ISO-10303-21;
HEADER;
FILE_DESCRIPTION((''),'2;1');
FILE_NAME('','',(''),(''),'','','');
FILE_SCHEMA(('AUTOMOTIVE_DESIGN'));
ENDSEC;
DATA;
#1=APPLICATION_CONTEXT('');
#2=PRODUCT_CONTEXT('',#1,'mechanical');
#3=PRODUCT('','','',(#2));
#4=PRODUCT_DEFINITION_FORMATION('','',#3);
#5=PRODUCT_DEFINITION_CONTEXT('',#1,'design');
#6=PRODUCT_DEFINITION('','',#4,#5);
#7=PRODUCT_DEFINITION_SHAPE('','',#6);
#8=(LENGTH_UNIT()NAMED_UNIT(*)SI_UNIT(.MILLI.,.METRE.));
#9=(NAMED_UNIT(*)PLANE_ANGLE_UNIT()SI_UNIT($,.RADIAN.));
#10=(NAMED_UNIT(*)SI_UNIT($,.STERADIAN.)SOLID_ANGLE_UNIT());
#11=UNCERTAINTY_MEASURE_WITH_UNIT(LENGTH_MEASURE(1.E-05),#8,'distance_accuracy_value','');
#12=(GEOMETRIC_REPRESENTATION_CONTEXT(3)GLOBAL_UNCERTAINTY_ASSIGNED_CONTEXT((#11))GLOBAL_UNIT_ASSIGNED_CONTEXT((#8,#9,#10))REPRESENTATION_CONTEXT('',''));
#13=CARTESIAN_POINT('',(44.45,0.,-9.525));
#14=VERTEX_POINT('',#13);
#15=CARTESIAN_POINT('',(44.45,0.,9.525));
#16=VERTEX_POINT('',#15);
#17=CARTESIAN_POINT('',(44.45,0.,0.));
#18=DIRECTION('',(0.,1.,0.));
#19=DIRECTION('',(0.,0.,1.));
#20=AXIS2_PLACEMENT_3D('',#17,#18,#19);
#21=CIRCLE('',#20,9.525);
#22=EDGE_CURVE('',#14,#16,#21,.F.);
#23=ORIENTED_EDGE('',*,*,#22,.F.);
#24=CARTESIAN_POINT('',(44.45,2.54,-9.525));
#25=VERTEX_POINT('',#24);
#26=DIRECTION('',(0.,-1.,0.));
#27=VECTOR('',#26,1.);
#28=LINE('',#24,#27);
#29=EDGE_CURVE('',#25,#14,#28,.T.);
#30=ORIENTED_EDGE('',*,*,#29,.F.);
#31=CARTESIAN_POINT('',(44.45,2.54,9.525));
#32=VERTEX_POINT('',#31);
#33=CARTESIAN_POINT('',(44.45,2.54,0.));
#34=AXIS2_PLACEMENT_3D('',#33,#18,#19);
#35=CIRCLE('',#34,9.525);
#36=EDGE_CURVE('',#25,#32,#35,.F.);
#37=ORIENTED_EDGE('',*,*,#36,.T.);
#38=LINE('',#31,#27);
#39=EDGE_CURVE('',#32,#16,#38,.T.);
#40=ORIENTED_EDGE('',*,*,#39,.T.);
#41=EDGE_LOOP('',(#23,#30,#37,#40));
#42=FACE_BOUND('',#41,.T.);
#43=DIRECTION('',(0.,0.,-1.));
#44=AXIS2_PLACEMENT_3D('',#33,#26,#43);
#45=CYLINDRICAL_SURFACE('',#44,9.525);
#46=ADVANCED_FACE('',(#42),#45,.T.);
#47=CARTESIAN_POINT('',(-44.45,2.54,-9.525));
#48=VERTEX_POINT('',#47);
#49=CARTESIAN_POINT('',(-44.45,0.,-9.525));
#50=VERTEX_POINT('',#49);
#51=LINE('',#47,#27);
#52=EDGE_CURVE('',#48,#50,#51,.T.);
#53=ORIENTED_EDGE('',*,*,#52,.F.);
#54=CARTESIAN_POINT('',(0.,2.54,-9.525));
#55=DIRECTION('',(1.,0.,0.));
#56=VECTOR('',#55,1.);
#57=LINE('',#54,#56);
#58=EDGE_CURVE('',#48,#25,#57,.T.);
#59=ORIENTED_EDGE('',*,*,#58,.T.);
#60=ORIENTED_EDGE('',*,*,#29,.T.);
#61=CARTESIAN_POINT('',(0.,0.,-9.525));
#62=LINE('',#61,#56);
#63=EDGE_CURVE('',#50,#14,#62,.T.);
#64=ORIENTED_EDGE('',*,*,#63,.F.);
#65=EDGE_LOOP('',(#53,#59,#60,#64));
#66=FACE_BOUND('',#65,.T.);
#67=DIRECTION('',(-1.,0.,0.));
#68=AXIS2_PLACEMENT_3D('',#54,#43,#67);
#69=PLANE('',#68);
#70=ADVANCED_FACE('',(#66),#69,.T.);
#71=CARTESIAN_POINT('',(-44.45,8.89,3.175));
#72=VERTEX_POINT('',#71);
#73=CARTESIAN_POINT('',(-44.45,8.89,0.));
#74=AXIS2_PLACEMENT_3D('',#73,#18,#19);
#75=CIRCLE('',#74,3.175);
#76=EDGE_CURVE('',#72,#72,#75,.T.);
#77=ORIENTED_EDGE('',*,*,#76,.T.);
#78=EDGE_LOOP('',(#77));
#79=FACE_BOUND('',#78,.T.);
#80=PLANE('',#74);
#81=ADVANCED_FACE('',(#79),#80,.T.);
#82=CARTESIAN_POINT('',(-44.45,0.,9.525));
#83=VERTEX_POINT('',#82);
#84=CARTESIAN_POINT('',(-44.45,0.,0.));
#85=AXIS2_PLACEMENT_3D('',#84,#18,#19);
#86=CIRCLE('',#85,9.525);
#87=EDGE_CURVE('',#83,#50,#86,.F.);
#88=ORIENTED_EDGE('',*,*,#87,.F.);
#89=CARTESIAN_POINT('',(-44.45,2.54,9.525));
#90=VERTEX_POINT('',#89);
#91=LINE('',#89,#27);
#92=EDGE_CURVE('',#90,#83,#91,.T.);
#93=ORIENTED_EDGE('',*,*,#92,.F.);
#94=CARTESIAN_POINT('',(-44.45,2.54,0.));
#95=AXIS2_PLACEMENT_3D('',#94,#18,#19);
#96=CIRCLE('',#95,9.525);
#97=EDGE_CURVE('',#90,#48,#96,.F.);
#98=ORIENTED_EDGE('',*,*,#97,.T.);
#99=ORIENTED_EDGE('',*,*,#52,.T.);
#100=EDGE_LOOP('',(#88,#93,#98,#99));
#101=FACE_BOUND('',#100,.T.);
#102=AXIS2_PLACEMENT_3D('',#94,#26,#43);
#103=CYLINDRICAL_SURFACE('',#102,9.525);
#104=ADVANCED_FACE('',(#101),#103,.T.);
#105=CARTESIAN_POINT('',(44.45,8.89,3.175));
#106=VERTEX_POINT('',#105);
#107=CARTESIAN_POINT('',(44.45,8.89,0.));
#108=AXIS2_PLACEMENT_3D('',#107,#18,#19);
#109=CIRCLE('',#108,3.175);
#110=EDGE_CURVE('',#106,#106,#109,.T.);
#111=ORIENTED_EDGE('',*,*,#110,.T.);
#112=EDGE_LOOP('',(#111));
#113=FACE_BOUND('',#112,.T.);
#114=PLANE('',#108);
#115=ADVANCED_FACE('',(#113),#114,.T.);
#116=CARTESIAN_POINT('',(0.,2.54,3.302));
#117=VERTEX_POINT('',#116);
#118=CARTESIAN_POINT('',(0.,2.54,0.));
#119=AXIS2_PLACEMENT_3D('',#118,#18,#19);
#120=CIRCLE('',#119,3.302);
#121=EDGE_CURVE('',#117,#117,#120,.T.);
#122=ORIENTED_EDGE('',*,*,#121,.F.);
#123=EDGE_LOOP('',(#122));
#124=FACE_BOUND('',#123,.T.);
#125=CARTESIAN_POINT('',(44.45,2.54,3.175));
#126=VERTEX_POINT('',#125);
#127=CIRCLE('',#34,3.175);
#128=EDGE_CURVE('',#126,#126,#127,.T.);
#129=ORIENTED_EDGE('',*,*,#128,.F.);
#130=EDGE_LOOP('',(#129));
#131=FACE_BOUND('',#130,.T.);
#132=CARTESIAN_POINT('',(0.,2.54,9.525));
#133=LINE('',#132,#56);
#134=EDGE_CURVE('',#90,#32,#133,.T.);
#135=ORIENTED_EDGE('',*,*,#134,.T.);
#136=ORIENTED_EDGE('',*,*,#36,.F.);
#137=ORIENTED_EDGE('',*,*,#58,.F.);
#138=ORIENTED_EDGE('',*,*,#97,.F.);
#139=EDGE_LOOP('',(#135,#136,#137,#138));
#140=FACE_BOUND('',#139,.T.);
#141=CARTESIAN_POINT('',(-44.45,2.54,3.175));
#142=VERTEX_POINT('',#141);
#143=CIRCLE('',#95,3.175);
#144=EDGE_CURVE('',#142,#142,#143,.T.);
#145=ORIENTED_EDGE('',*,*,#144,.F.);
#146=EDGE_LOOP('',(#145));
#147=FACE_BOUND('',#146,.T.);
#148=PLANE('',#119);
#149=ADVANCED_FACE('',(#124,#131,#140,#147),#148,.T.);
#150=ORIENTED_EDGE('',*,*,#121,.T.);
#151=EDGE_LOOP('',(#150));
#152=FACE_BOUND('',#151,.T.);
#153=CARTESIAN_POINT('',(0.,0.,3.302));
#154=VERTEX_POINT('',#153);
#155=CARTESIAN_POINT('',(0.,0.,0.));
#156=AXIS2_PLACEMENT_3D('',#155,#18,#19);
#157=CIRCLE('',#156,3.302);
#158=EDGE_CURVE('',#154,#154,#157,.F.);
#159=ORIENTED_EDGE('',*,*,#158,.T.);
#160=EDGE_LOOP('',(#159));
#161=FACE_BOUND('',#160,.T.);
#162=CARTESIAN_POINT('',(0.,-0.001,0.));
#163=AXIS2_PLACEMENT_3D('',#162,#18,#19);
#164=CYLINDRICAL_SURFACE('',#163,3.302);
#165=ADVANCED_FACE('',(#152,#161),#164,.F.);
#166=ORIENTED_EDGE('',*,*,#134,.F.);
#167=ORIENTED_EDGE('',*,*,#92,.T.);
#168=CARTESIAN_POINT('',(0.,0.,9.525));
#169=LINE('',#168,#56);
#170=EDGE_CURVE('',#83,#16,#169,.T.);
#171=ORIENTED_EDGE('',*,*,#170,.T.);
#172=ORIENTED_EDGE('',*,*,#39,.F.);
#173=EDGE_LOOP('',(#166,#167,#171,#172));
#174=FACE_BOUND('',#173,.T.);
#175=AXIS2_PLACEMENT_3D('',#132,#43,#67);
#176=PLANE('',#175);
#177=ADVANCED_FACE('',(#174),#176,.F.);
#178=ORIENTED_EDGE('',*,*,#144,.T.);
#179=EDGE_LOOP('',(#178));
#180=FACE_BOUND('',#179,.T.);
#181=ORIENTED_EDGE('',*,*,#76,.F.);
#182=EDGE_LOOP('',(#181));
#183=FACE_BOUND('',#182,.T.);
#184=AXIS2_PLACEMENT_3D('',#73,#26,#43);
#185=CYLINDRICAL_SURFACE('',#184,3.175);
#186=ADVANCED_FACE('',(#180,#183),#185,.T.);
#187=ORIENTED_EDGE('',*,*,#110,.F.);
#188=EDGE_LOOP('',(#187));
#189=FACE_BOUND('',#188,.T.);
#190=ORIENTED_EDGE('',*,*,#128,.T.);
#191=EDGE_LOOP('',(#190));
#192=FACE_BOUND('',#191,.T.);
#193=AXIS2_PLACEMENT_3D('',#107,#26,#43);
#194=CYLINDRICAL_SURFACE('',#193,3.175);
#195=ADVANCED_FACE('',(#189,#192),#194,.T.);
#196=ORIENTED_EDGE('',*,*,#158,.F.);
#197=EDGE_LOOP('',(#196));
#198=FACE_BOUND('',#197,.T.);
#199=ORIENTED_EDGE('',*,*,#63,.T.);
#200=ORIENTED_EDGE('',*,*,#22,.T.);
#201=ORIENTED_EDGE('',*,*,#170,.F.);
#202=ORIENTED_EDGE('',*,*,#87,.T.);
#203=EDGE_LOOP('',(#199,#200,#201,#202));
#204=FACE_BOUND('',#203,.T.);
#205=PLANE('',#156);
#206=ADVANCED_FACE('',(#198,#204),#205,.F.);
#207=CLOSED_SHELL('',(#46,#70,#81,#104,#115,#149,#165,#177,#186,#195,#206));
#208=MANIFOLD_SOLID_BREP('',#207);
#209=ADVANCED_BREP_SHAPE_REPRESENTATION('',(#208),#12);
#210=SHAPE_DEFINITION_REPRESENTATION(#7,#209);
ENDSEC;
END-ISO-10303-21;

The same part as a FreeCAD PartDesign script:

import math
import FreeCAD as App
import Part
import Sketcher

V = App.Vector
Q = App.Units.Quantity

doc = App.newDocument("Part")
body = doc.addObject("PartDesign::Body", "Body")

# Sketch on XZ plane
sketch1 = doc.addObject("Sketcher::SketchObject", "Sketch")
body.addObject(sketch1)
sketch1.AttachmentSupport = (doc.XZ_Plane, [""])
sketch1.MapMode = "FlatFace"
sketch1.addGeometry(Part.ArcOfCircle(Part.Circle(V(-44, 0, 0), V(0, 0, 1), 10), math.radians(90), math.radians(270)), False)
sketch1.addGeometry(Part.LineSegment(V(-44, 10, 0), V(44, 10, 0)), False)
sketch1.addGeometry(Part.ArcOfCircle(Part.Circle(V(44, 0, 0), V(0, 0, 1), 10), math.radians(-90), math.radians(90)), False)
sketch1.addGeometry(Part.LineSegment(V(44, -10, 0), V(-44, -10, 0)), False)
sketch1.addConstraint(Sketcher.Constraint("Tangent", 0, 1, 1, 1))
sketch1.addConstraint(Sketcher.Constraint("Tangent", 1, 2, 2, 2))
sketch1.addConstraint(Sketcher.Constraint("Tangent", 2, 1, 3, 1))
sketch1.addConstraint(Sketcher.Constraint("Tangent", 3, 2, 0, 2))
sketch1.addConstraint(Sketcher.Constraint("Horizontal", 1))
sketch1.addConstraint(Sketcher.Constraint("Horizontal", 3))
sketch1.addConstraint(Sketcher.Constraint("Symmetric", 0, 3, 2, 3, -1, 1))
sketch1.addConstraint(Sketcher.Constraint("DistanceX", 1, 1, 1, 2, Q("3.5 in")))
sketch1.addConstraint(Sketcher.Constraint("Radius", 0, Q("0.375 in")))
pad1 = doc.addObject("PartDesign::Pad", "Pad")
body.addObject(pad1)
pad1.Profile = sketch1
pad1.Length = Q("0.1 in")
pad1.Reversed = True

# Sketch on XZ plane
sketch2 = doc.addObject("Sketcher::SketchObject", "Sketch001")
body.addObject(sketch2)
sketch2.AttachmentSupport = (doc.XZ_Plane, [""])
sketch2.MapMode = "FlatFace"
sketch2.AttachmentOffset = App.Placement(V(0, 0, -0.1 * 25.4), App.Rotation())
sketch2.addGeometry(Part.Circle(V(-44.5, 0, 0), V(0, 0, 1), 3.2), False)
sketch2.addGeometry(Part.Circle(V(44.5, 0, 0), V(0, 0, 1), 3.2), False)
sketch2.addConstraint(Sketcher.Constraint("Equal", 0, 1))
sketch2.addConstraint(Sketcher.Constraint("Symmetric", 0, 3, 1, 3, -1, 1))
sketch2.addConstraint(Sketcher.Constraint("PointOnObject", 0, 3, -1))
sketch2.addConstraint(Sketcher.Constraint("Diameter", 0, Q("0.25 in")))
sketch2.addConstraint(Sketcher.Constraint("DistanceX", 0, 3, 1, 3, Q("3.5 in")))
pad2 = doc.addObject("PartDesign::Pad", "Pad001")
body.addObject(pad2)
pad2.Profile = sketch2
pad2.Length = Q("0.25 in")
pad2.Reversed = True

# Sketch on XZ plane
sketch3 = doc.addObject("Sketcher::SketchObject", "Sketch002")
body.addObject(sketch3)
sketch3.AttachmentSupport = (doc.XZ_Plane, [""])
sketch3.MapMode = "FlatFace"
sketch3.AttachmentOffset = App.Placement(V(0, 0, -0.1 * 25.4), App.Rotation())
sketch3.addGeometry(Part.Circle(V(0, 0, 0), V(0, 0, 1), 3.3), False)
sketch3.addConstraint(Sketcher.Constraint("Coincident", 0, 3, -1, 1))
sketch3.addConstraint(Sketcher.Constraint("Diameter", 0, Q("0.26 in")))
pocket1 = doc.addObject("PartDesign::Pocket", "Pocket")
body.addObject(pocket1)
pocket1.Profile = sketch3
pocket1.Type = "UpToFirst"
pocket1.Reversed = True

doc.recompute()
